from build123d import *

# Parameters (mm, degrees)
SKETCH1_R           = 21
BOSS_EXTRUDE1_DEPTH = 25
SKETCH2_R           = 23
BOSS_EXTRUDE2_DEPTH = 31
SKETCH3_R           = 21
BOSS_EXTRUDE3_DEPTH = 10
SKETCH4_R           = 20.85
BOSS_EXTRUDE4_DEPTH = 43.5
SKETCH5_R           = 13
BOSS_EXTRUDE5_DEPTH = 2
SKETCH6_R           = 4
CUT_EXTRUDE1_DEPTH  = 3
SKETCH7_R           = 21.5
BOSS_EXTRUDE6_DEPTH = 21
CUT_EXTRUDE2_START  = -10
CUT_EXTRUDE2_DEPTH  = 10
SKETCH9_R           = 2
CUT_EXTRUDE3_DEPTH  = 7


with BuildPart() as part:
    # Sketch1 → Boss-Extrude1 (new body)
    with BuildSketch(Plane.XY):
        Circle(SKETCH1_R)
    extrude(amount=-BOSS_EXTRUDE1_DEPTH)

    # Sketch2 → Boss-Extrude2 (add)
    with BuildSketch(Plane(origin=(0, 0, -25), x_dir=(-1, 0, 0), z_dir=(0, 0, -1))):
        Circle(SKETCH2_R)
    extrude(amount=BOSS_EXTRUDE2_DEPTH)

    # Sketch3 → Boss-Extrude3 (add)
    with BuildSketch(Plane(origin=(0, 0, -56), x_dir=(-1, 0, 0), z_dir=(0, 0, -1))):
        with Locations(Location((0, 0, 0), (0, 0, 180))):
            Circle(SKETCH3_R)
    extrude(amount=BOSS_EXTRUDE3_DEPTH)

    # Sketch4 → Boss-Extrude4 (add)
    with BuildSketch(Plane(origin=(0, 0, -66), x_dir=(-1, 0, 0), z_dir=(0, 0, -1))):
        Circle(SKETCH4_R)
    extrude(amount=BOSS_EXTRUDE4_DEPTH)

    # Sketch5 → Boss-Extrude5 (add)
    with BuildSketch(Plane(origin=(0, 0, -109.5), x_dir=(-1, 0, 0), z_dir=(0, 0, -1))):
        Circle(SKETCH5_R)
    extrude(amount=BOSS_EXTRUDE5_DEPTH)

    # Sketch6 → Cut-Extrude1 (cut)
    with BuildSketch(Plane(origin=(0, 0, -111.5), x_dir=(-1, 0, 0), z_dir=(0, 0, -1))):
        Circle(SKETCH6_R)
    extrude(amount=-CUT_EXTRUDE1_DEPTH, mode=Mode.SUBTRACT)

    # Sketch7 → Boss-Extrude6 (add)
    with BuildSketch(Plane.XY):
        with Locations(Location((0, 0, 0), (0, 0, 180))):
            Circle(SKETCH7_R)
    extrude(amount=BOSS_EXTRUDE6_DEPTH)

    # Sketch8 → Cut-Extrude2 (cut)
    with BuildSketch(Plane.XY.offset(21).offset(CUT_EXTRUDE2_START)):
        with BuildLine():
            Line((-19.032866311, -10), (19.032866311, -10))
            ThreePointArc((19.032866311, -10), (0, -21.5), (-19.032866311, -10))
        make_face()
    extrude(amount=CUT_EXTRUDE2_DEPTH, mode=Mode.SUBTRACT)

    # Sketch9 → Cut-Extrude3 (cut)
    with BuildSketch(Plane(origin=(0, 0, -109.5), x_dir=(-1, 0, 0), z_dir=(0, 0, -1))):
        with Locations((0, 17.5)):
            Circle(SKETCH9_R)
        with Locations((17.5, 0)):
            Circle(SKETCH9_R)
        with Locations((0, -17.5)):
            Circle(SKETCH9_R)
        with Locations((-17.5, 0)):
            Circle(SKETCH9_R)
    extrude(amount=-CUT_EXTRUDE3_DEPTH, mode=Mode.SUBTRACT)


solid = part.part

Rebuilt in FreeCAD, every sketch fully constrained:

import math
import FreeCAD as App
import Part
import Sketcher
from FreeCAD import Vector

doc = App.newDocument("Part")
body = doc.addObject("PartDesign::Body", "Body")

# Sketch on XY plane
sketch1 = doc.addObject("Sketcher::SketchObject", "Sketch")
body.addObject(sketch1)
sketch1.AttachmentSupport = (doc.XY_Plane, [""])
sketch1.MapMode = "FlatFace"
sketch1.addGeometry(Part.Circle(Vector(0, 0, 0), Vector(0, 0, 1), 21), False)
sketch1.addConstraint([
    Sketcher.Constraint("Coincident", 0, 3, -1, 1),
    Sketcher.Constraint("Diameter", 0, 42.0),
])
pad1 = doc.addObject("PartDesign::Pad", "Pad")
body.addObject(pad1)
pad1.Profile = sketch1
pad1.Length = 25
pad1.Reversed = True

# Sketch on XY plane
sketch2 = doc.addObject("Sketcher::SketchObject", "Sketch001")
body.addObject(sketch2)
sketch2.AttachmentSupport = (doc.XY_Plane, [""])
sketch2.MapMode = "FlatFace"
sketch2.AttachmentOffset = App.Placement(Vector(0, 0, -25), App.Rotation())
sketch2.addGeometry(Part.Circle(Vector(0, 0, 0), Vector(0, 0, 1), 23), False)
sketch2.addConstraint([
    Sketcher.Constraint("Coincident", 0, 3, -1, 1),
    Sketcher.Constraint("Diameter", 0, 46.0),
])
pad2 = doc.addObject("PartDesign::Pad", "Pad001")
body.addObject(pad2)
pad2.Profile = sketch2
pad2.Length = 31
pad2.Reversed = True

# Sketch on XY plane
sketch3 = doc.addObject("Sketcher::SketchObject", "Sketch002")
body.addObject(sketch3)
sketch3.AttachmentSupport = (doc.XY_Plane, [""])
sketch3.MapMode = "FlatFace"
sketch3.AttachmentOffset = App.Placement(Vector(0, 0, -56), App.Rotation())
sketch3.addGeometry(Part.Circle(Vector(0, 0, 0), Vector(0, 0, 1), 21), False)
sketch3.addConstraint([
    Sketcher.Constraint("Coincident", 0, 3, -1, 1),
    Sketcher.Constraint("Diameter", 0, 42.0),
])
pad3 = doc.addObject("PartDesign::Pad", "Pad002")
body.addObject(pad3)
pad3.Profile = sketch3
pad3.Length = 10
pad3.Reversed = True

# Sketch on XY plane
sketch4 = doc.addObject("Sketcher::SketchObject", "Sketch003")
body.addObject(sketch4)
sketch4.AttachmentSupport = (doc.XY_Plane, [""])
sketch4.MapMode = "FlatFace"
sketch4.AttachmentOffset = App.Placement(Vector(0, 0, -66), App.Rotation())
sketch4.addGeometry(Part.Circle(Vector(0, 0, 0), Vector(0, 0, 1), 21), False)
sketch4.addConstraint([
    Sketcher.Constraint("Coincident", 0, 3, -1, 1),
    Sketcher.Constraint("Diameter", 0, 41.7),
])
pad4 = doc.addObject("PartDesign::Pad", "Pad003")
body.addObject(pad4)
pad4.Profile = sketch4
pad4.Length = 43.5
pad4.Reversed = True

# Sketch on XY plane
sketch5 = doc.addObject("Sketcher::SketchObject", "Sketch004")
body.addObject(sketch5)
sketch5.AttachmentSupport = (doc.XY_Plane, [""])
sketch5.MapMode = "FlatFace"
sketch5.AttachmentOffset = App.Placement(Vector(0, 0, -109.5), App.Rotation())
sketch5.addGeometry(Part.Circle(Vector(0, 0, 0), Vector(0, 0, 1), 13), False)
sketch5.addConstraint([
    Sketcher.Constraint("Coincident", 0, 3, -1, 1),
    Sketcher.Constraint("Diameter", 0, 26.0),
])
pad5 = doc.addObject("PartDesign::Pad", "Pad004")
body.addObject(pad5)
pad5.Profile = sketch5
pad5.Length = 2
pad5.Reversed = True

# Sketch on XY plane
sketch6 = doc.addObject("Sketcher::SketchObject", "Sketch005")
body.addObject(sketch6)
sketch6.AttachmentSupport = (doc.XY_Plane, [""])
sketch6.MapMode = "FlatFace"
sketch6.AttachmentOffset = App.Placement(Vector(0, 0, -111.5), App.Rotation())
sketch6.addGeometry(Part.Circle(Vector(0, 0, 0), Vector(0, 0, 1), 4), False)
sketch6.addConstraint([
    Sketcher.Constraint("Coincident", 0, 3, -1, 1),
    Sketcher.Constraint("Diameter", 0, 8.0),
])
pocket1 = doc.addObject("PartDesign::Pocket", "Pocket")
body.addObject(pocket1)
pocket1.Profile = sketch6
pocket1.Length = 3
pocket1.Reversed = True

# Sketch on XY plane
sketch7 = doc.addObject("Sketcher::SketchObject", "Sketch006")
body.addObject(sketch7)
sketch7.AttachmentSupport = (doc.XY_Plane, [""])
sketch7.MapMode = "FlatFace"
sketch7.addGeometry(Part.Circle(Vector(0, 0, 0), Vector(0, 0, 1), 22), False)
sketch7.addConstraint([
    Sketcher.Constraint("Coincident", 0, 3, -1, 1),
    Sketcher.Constraint("Diameter", 0, 43.0),
])
pad6 = doc.addObject("PartDesign::Pad", "Pad005")
body.addObject(pad6)
pad6.Profile = sketch7
pad6.Length = 21

# Sketch on XY plane
sketch8 = doc.addObject("Sketcher::SketchObject", "Sketch007")
body.addObject(sketch8)
sketch8.AttachmentSupport = (doc.XY_Plane, [""])
sketch8.MapMode = "FlatFace"
sketch8.AttachmentOffset = App.Placement(Vector(0, 0, 11), App.Rotation())
sketch8.addGeometry([
    Part.LineSegment(Vector(19, -10, 0), Vector(-19, -10, 0)),
    Part.ArcOfCircle(Part.Circle(Vector(0, 0, 0), Vector(0, 0, 1), 22), math.radians(-152), math.radians(-28)),
], False)
sketch8.addConstraint([
    Sketcher.Constraint("Coincident", 0, 1, 1, 2),
    Sketcher.Constraint("Coincident", 1, 1, 0, 2),
    Sketcher.Constraint("Horizontal", 0),
    Sketcher.Constraint("Coincident", 1, 3, -1, 1),
    Sketcher.Constraint("Radius", 1, 21.5),
    Sketcher.Constraint("DistanceY", 0, 1, -1, 1, 10.0),
])
pocket2 = doc.addObject("PartDesign::Pocket", "Pocket001")
body.addObject(pocket2)
pocket2.Profile = sketch8
pocket2.Length = 10
pocket2.Reversed = True

# Sketch on XY plane
sketch9 = doc.addObject("Sketcher::SketchObject", "Sketch008")
body.addObject(sketch9)
sketch9.AttachmentSupport = (doc.XY_Plane, [""])
sketch9.MapMode = "FlatFace"
sketch9.AttachmentOffset = App.Placement(Vector(0, 0, -109.5), App.Rotation())
sketch9.addGeometry([
    Part.Circle(Vector(0, 17.5, 0), Vector(0, 0, 1), 2),
    Part.Circle(Vector(-17.5, 0, 0), Vector(0, 0, 1), 2),
    Part.Circle(Vector(0, -17.5, 0), Vector(0, 0, 1), 2),
    Part.Circle(Vector(17.5, 0, 0), Vector(0, 0, 1), 2),
], False)
sketch9.addConstraint([
    Sketcher.Constraint("Equal", 0, 1),
    Sketcher.Constraint("Equal", 1, 2),
    Sketcher.Constraint("Equal", 2, 3),
    Sketcher.Constraint("Symmetric", 0, 3, 2, 3, -1, 1),
    Sketcher.Constraint("Symmetric", 1, 3, 3, 3, -1, 1),
    Sketcher.Constraint("PointOnObject", 0, 3, -2),
    Sketcher.Constraint("PointOnObject", 1, 3, -1),
    Sketcher.Constraint("Diameter", 0, 4.0),
    Sketcher.Constraint("DistanceY", 2, 3, 0, 3, 35.0),
    Sketcher.Constraint("DistanceX", 1, 3, 3, 3, 35.0),
])
pocket3 = doc.addObject("PartDesign::Pocket", "Pocket002")
body.addObject(pocket3)
pocket3.Profile = sketch9
pocket3.Length = 7
pocket3.Reversed = True

doc.recompute()
